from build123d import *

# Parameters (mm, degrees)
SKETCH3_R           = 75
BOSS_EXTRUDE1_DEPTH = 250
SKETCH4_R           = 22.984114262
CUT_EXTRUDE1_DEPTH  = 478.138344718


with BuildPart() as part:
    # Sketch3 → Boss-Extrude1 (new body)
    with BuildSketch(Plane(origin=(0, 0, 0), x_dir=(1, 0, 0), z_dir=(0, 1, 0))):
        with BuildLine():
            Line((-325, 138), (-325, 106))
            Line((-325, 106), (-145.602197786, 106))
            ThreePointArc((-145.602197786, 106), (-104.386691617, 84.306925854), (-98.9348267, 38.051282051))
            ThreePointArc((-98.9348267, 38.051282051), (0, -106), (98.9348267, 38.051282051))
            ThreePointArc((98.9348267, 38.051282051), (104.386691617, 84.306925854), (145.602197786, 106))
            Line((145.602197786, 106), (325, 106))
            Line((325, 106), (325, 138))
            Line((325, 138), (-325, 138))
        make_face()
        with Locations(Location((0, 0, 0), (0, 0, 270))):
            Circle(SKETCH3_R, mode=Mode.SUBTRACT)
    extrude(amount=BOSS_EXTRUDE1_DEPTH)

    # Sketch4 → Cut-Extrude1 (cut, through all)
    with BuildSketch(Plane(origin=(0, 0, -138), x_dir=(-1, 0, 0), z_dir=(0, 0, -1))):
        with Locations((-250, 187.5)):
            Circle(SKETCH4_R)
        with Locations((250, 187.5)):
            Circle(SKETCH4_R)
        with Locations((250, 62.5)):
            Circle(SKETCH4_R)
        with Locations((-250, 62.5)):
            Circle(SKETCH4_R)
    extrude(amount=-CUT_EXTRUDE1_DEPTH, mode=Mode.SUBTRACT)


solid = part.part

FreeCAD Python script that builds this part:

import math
import FreeCAD as App
import Part
import Sketcher

doc = App.newDocument("Part")
params = doc.addObject("Spreadsheet::Sheet", "Params")
for row, (alias, value) in enumerate([
    ("sketch1_diameter", "150 mm"),
    ("sketch1_radius", "50 mm"),
    ("sketch1_radius2", "106 mm"),
    ("sketch1_width", "650 mm"),
    ("sketch1_height", "32 mm"),
    ("pad1_length", "250 mm"),
], start=1):
    params.set(f"A{row}", alias)
    params.set(f"B{row}", "=" + value)
    params.setAlias(f"B{row}", alias)

body = doc.addObject("PartDesign::Body", "Body")

# Sketch on XZ plane
sketch1 = doc.addObject("Sketcher::SketchObject", "Sketch")
body.addObject(sketch1)
sketch1.AttachmentSupport = (doc.XZ_Plane, [""])
sketch1.MapMode = "FlatFace"
sketch1.addGeometry([
    Part.LineSegment(App.Vector(-325, -138, 0), App.Vector(-325, -106, 0)),  # 0
    Part.LineSegment(App.Vector(-325, -106, 0), App.Vector(-146, -106, 0)),  # 1
    Part.ArcOfCircle(Part.Circle(App.Vector(-146, -56, 0), App.Vector(0, 0, 1), 50), math.radians(-90), math.radians(21)),  # 2
    Part.ArcOfCircle(Part.Circle(App.Vector(0, 0, 0), App.Vector(0, 0, 1), 106), math.radians(-21), math.radians(201)),  # 3
    Part.ArcOfCircle(Part.Circle(App.Vector(146, -56, 0), App.Vector(0, 0, 1), 50), math.radians(159), math.radians(270)),  # 4
    Part.LineSegment(App.Vector(146, -106, 0), App.Vector(325, -106, 0)),  # 5
    Part.LineSegment(App.Vector(325, -106, 0), App.Vector(325, -138, 0)),  # 6
    Part.LineSegment(App.Vector(325, -138, 0), App.Vector(-325, -138, 0)),  # 7
    Part.Circle(App.Vector(0, 0, 0), App.Vector(0, 0, 1), 75),  # 8
], False)
sketch1.addConstraint([
    Sketcher.Constraint("Coincident", 0, 2, 1, 1),
    Sketcher.Constraint("Tangent", 1, 2, 2, 1),
    Sketcher.Constraint("Tangent", 2, 2, 3, 2),
    Sketcher.Constraint("Tangent", 3, 1, 4, 1),
    Sketcher.Constraint("Tangent", 4, 2, 5, 1),
    Sketcher.Constraint("Coincident", 5, 2, 6, 1),
    Sketcher.Constraint("Coincident", 6, 2, 7, 1),
    Sketcher.Constraint("Coincident", 7, 2, 0, 1),
    Sketcher.Constraint("Vertical", 0),
    Sketcher.Constraint("Horizontal", 1),
    Sketcher.Constraint("Horizontal", 5),
    Sketcher.Constraint("Vertical", 6),
    Sketcher.Constraint("Horizontal", 7),
    Sketcher.Constraint("Coincident", 3, 3, -1, 1),
    Sketcher.Constraint("Coincident", 8, 3, -1, 1),
    Sketcher.Constraint("Equal", 2, 4),
    Sketcher.Constraint("Symmetric", 0, 2, 5, 2, -2),
    Sketcher.Constraint("Diameter", 8, 150.0),
    Sketcher.Constraint("Radius", 2, 50.0),
    Sketcher.Constraint("Radius", 3, 106.0),
    Sketcher.Constraint("DistanceX", 7, 2, 7, 1, 650.0),
    Sketcher.Constraint("DistanceY", 0, 1, 0, 2, 32.0),
    Sketcher.Constraint("DistanceY", 2, 3, -1, 1, 56.0),
])
sketch1.setExpression("Constraints[17]", "Params.sketch1_diameter")
sketch1.setExpression("Constraints[18]", "Params.sketch1_radius")
sketch1.setExpression("Constraints[19]", "Params.sketch1_radius2")
sketch1.setExpression("Constraints[20]", "Params.sketch1_width")
sketch1.setExpression("Constraints[21]", "Params.sketch1_height")
pad1 = doc.addObject("PartDesign::Pad", "Pad")
body.addObject(pad1)
pad1.Profile = sketch1
pad1.setExpression("Length", "Params.pad1_length")
pad1.Reversed = True

# Sketch on XY plane
sketch2 = doc.addObject("Sketcher::SketchObject", "Sketch001")
body.addObject(sketch2)
sketch2.AttachmentSupport = (doc.XY_Plane, [""])
sketch2.MapMode = "FlatFace"
sketch2.AttachmentOffset = App.Placement(App.Vector(0, 0, -138), App.Rotation())
sketch2.addGeometry([
    Part.Circle(App.Vector(250, 188, 0), App.Vector(0, 0, 1), 23),
    Part.Circle(App.Vector(-250, 188, 0), App.Vector(0, 0, 1), 23),
    Part.Circle(App.Vector(-250, 62, 0), App.Vector(0, 0, 1), 23),
    Part.Circle(App.Vector(250, 62, 0), App.Vector(0, 0, 1), 23),
], False)
sketch2.addConstraint([
    Sketcher.Constraint("Equal", 0, 1),
    Sketcher.Constraint("Equal", 1, 2),
    Sketcher.Constraint("Equal", 2, 3),
    Sketcher.Constraint("Symmetric", 0, 3, 1, 3, -2),
    Sketcher.Constraint("Symmetric", 2, 3, 3, 3, -2),
    Sketcher.Constraint("Vertical", 1, 3, 2, 3),
    Sketcher.Constraint("DistanceX", -1, 1, 0, 3, 250.0),
    Sketcher.Constraint("DistanceY", 2, 3, 1, 3, 125.0),
    Sketcher.Constraint("DistanceY", -1, 1, 0, 3, 187.5),
    Sketcher.Constraint("Diameter", 0, 45.968229),
])
pocket1 = doc.addObject("PartDesign::Pocket", "Pocket")
body.addObject(pocket1)
pocket1.Profile = sketch2
pocket1.Type = "ThroughAll"
pocket1.Reversed = True

doc.recompute()
